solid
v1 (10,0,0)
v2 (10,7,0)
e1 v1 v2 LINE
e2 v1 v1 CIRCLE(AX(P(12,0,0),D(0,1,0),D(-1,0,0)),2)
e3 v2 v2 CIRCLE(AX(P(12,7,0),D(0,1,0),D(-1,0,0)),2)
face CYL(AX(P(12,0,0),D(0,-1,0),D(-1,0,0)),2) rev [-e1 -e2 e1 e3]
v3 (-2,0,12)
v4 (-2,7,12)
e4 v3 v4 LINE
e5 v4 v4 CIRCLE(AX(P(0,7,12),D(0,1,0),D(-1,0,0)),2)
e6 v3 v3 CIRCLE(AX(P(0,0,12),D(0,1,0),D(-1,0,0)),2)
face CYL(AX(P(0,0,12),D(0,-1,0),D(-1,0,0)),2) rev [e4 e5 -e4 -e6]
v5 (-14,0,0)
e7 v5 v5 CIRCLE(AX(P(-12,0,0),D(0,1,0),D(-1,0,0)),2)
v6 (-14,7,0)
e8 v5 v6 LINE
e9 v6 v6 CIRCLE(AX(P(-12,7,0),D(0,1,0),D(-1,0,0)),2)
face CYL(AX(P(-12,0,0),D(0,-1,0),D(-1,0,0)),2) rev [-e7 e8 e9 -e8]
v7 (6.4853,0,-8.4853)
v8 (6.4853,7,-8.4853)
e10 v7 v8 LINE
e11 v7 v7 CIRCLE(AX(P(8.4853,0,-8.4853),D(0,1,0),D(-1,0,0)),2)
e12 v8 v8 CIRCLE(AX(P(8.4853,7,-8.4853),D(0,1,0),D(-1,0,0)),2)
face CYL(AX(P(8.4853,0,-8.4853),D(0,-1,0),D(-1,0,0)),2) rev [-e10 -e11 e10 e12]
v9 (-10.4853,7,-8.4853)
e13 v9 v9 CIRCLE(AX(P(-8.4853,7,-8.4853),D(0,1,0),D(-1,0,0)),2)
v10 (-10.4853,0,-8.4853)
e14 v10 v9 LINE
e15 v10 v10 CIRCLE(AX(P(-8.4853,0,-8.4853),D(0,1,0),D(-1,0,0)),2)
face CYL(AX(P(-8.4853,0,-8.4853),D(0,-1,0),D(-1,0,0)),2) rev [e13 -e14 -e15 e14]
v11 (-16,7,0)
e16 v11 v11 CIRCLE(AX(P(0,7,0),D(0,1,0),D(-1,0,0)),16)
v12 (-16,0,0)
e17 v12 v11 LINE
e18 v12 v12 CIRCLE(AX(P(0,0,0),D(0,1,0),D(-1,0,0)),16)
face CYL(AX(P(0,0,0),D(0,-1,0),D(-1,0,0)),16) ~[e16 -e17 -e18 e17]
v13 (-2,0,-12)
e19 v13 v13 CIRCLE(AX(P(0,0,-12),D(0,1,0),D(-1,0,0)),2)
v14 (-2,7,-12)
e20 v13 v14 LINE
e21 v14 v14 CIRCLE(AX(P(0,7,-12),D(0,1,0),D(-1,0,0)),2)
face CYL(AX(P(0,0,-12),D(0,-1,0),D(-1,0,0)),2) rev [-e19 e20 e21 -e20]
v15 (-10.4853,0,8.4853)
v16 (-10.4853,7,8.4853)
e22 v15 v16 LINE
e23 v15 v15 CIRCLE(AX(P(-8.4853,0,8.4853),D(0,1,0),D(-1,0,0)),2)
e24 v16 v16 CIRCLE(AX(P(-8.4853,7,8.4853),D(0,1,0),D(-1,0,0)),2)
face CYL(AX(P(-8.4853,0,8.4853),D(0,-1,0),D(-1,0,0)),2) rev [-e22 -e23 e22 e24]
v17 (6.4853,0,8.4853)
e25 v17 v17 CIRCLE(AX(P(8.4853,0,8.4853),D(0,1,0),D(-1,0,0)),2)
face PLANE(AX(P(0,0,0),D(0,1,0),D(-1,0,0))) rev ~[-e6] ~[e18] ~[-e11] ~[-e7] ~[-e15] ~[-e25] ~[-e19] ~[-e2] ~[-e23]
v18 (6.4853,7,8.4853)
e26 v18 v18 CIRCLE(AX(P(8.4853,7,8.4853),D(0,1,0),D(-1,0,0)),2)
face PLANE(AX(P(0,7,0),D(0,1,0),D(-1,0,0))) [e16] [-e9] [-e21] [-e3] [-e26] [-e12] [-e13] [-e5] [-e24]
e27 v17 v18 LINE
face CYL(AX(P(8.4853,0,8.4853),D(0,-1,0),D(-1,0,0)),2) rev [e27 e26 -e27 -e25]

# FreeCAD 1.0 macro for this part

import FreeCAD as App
import Part
import Sketcher

V = App.Vector
Q = App.Units.Quantity

doc = App.newDocument("Part")
params = doc.addObject("Spreadsheet::Sheet", "Params")
for row, (alias, value) in enumerate([
    ("sketch1_diameter", "32 mm"),
    ("sketch1_diameter2", "4 mm"),
    ("pad1_length", "7 mm"),
], start=1):
    params.set(f"A{row}", alias)
    params.set(f"B{row}", "=" + value)
    params.setAlias(f"B{row}", alias)

body = doc.addObject("PartDesign::Body", "Body")

# Sketch on XZ plane
sketch1 = doc.addObject("Sketcher::SketchObject", "Sketch")
body.addObject(sketch1)
sketch1.AttachmentSupport = (doc.XZ_Plane, [""])
sketch1.MapMode = "FlatFace"
sketch1.addGeometry(Part.Circle(V(0, 0, 0), V(0, 0, 1), 16), False)
sketch1.addGeometry(Part.Circle(V(8.4853, -8.4853, 0), V(0, 0, 1), 2), False)
sketch1.addGeometry(Part.Circle(V(0, -12, 0), V(0, 0, 1), 2), False)
sketch1.addGeometry(Part.Circle(V(-8.4853, -8.4853, 0), V(0, 0, 1), 2), False)
sketch1.addGeometry(Part.Circle(V(12, 0, 0), V(0, 0, 1), 2), False)
sketch1.addGeometry(Part.Circle(V(8.4853, 8.4853, 0), V(0, 0, 1), 2), False)
sketch1.addGeometry(Part.Circle(V(-12, 0, 0), V(0, 0, 1), 2), False)
sketch1.addGeometry(Part.Circle(V(0, 12, 0), V(0, 0, 1), 2), False)
sketch1.addGeometry(Part.Circle(V(-8.4853, 8.4853, 0), V(0, 0, 1), 2), False)
sketch1.addConstraint(Sketcher.Constraint("Coincident", 0, 3, -1, 1))
sketch1.addConstraint(Sketcher.Constraint("Equal", 1, 2))
sketch1.addConstraint(Sketcher.Constraint("Equal", 2, 3))
sketch1.addConstraint(Sketcher.Constraint("Equal", 3, 4))
sketch1.addConstraint(Sketcher.Constraint("Equal", 4, 5))
sketch1.addConstraint(Sketcher.Constraint("Equal", 5, 6))
sketch1.addConstraint(Sketcher.Constraint("Equal", 6, 7))
sketch1.addConstraint(Sketcher.Constraint("Equal", 7, 8))
sketch1.addConstraint(Sketcher.Constraint("Symmetric", 3, 3, 5, 3, -1, 1))
sketch1.addConstraint(Sketcher.Constraint("Symmetric", 4, 3, 6, 3, -1, 1))
sketch1.addConstraint(Sketcher.Constraint("Symmetric", 2, 3, 7, 3, -1, 1))
sketch1.addConstraint(Sketcher.Constraint("Symmetric", 1, 3, 8, 3, -1, 1))
sketch1.addConstraint(Sketcher.Constraint("Symmetric", 1, 3, 3, 3, -2))
sketch1.addConstraint(Sketcher.Constraint("PointOnObject", 2, 3, -2))
sketch1.addConstraint(Sketcher.Constraint("PointOnObject", 4, 3, -1))
sketch1.addConstraint(Sketcher.Constraint("Diameter", 0, Q("32 mm")))
sketch1.addConstraint(Sketcher.Constraint("Diameter", 1, Q("4 mm")))
sketch1.addConstraint(Sketcher.Constraint("DistanceY", 2, 3, -1, 1, Q("12 mm")))
sketch1.addConstraint(Sketcher.Constraint("DistanceX", -1, 1, 4, 3, Q("12 mm")))
sketch1.addConstraint(Sketcher.Constraint("DistanceX", -1, 1, 1, 3, Q("8.4853 mm")))
sketch1.addConstraint(Sketcher.Constraint("DistanceY", 1, 3, -1, 1, Q("8.4853 mm")))
sketch1.setExpression("Constraints[15]", "Params.sketch1_diameter")
sketch1.setExpression("Constraints[16]", "Params.sketch1_diameter2")
pad1 = doc.addObject("PartDesign::Pad", "Pad")
body.addObject(pad1)
pad1.Profile = sketch1
pad1.setExpression("Length", "Params.pad1_length")
pad1.Reversed = True

doc.recompute()
